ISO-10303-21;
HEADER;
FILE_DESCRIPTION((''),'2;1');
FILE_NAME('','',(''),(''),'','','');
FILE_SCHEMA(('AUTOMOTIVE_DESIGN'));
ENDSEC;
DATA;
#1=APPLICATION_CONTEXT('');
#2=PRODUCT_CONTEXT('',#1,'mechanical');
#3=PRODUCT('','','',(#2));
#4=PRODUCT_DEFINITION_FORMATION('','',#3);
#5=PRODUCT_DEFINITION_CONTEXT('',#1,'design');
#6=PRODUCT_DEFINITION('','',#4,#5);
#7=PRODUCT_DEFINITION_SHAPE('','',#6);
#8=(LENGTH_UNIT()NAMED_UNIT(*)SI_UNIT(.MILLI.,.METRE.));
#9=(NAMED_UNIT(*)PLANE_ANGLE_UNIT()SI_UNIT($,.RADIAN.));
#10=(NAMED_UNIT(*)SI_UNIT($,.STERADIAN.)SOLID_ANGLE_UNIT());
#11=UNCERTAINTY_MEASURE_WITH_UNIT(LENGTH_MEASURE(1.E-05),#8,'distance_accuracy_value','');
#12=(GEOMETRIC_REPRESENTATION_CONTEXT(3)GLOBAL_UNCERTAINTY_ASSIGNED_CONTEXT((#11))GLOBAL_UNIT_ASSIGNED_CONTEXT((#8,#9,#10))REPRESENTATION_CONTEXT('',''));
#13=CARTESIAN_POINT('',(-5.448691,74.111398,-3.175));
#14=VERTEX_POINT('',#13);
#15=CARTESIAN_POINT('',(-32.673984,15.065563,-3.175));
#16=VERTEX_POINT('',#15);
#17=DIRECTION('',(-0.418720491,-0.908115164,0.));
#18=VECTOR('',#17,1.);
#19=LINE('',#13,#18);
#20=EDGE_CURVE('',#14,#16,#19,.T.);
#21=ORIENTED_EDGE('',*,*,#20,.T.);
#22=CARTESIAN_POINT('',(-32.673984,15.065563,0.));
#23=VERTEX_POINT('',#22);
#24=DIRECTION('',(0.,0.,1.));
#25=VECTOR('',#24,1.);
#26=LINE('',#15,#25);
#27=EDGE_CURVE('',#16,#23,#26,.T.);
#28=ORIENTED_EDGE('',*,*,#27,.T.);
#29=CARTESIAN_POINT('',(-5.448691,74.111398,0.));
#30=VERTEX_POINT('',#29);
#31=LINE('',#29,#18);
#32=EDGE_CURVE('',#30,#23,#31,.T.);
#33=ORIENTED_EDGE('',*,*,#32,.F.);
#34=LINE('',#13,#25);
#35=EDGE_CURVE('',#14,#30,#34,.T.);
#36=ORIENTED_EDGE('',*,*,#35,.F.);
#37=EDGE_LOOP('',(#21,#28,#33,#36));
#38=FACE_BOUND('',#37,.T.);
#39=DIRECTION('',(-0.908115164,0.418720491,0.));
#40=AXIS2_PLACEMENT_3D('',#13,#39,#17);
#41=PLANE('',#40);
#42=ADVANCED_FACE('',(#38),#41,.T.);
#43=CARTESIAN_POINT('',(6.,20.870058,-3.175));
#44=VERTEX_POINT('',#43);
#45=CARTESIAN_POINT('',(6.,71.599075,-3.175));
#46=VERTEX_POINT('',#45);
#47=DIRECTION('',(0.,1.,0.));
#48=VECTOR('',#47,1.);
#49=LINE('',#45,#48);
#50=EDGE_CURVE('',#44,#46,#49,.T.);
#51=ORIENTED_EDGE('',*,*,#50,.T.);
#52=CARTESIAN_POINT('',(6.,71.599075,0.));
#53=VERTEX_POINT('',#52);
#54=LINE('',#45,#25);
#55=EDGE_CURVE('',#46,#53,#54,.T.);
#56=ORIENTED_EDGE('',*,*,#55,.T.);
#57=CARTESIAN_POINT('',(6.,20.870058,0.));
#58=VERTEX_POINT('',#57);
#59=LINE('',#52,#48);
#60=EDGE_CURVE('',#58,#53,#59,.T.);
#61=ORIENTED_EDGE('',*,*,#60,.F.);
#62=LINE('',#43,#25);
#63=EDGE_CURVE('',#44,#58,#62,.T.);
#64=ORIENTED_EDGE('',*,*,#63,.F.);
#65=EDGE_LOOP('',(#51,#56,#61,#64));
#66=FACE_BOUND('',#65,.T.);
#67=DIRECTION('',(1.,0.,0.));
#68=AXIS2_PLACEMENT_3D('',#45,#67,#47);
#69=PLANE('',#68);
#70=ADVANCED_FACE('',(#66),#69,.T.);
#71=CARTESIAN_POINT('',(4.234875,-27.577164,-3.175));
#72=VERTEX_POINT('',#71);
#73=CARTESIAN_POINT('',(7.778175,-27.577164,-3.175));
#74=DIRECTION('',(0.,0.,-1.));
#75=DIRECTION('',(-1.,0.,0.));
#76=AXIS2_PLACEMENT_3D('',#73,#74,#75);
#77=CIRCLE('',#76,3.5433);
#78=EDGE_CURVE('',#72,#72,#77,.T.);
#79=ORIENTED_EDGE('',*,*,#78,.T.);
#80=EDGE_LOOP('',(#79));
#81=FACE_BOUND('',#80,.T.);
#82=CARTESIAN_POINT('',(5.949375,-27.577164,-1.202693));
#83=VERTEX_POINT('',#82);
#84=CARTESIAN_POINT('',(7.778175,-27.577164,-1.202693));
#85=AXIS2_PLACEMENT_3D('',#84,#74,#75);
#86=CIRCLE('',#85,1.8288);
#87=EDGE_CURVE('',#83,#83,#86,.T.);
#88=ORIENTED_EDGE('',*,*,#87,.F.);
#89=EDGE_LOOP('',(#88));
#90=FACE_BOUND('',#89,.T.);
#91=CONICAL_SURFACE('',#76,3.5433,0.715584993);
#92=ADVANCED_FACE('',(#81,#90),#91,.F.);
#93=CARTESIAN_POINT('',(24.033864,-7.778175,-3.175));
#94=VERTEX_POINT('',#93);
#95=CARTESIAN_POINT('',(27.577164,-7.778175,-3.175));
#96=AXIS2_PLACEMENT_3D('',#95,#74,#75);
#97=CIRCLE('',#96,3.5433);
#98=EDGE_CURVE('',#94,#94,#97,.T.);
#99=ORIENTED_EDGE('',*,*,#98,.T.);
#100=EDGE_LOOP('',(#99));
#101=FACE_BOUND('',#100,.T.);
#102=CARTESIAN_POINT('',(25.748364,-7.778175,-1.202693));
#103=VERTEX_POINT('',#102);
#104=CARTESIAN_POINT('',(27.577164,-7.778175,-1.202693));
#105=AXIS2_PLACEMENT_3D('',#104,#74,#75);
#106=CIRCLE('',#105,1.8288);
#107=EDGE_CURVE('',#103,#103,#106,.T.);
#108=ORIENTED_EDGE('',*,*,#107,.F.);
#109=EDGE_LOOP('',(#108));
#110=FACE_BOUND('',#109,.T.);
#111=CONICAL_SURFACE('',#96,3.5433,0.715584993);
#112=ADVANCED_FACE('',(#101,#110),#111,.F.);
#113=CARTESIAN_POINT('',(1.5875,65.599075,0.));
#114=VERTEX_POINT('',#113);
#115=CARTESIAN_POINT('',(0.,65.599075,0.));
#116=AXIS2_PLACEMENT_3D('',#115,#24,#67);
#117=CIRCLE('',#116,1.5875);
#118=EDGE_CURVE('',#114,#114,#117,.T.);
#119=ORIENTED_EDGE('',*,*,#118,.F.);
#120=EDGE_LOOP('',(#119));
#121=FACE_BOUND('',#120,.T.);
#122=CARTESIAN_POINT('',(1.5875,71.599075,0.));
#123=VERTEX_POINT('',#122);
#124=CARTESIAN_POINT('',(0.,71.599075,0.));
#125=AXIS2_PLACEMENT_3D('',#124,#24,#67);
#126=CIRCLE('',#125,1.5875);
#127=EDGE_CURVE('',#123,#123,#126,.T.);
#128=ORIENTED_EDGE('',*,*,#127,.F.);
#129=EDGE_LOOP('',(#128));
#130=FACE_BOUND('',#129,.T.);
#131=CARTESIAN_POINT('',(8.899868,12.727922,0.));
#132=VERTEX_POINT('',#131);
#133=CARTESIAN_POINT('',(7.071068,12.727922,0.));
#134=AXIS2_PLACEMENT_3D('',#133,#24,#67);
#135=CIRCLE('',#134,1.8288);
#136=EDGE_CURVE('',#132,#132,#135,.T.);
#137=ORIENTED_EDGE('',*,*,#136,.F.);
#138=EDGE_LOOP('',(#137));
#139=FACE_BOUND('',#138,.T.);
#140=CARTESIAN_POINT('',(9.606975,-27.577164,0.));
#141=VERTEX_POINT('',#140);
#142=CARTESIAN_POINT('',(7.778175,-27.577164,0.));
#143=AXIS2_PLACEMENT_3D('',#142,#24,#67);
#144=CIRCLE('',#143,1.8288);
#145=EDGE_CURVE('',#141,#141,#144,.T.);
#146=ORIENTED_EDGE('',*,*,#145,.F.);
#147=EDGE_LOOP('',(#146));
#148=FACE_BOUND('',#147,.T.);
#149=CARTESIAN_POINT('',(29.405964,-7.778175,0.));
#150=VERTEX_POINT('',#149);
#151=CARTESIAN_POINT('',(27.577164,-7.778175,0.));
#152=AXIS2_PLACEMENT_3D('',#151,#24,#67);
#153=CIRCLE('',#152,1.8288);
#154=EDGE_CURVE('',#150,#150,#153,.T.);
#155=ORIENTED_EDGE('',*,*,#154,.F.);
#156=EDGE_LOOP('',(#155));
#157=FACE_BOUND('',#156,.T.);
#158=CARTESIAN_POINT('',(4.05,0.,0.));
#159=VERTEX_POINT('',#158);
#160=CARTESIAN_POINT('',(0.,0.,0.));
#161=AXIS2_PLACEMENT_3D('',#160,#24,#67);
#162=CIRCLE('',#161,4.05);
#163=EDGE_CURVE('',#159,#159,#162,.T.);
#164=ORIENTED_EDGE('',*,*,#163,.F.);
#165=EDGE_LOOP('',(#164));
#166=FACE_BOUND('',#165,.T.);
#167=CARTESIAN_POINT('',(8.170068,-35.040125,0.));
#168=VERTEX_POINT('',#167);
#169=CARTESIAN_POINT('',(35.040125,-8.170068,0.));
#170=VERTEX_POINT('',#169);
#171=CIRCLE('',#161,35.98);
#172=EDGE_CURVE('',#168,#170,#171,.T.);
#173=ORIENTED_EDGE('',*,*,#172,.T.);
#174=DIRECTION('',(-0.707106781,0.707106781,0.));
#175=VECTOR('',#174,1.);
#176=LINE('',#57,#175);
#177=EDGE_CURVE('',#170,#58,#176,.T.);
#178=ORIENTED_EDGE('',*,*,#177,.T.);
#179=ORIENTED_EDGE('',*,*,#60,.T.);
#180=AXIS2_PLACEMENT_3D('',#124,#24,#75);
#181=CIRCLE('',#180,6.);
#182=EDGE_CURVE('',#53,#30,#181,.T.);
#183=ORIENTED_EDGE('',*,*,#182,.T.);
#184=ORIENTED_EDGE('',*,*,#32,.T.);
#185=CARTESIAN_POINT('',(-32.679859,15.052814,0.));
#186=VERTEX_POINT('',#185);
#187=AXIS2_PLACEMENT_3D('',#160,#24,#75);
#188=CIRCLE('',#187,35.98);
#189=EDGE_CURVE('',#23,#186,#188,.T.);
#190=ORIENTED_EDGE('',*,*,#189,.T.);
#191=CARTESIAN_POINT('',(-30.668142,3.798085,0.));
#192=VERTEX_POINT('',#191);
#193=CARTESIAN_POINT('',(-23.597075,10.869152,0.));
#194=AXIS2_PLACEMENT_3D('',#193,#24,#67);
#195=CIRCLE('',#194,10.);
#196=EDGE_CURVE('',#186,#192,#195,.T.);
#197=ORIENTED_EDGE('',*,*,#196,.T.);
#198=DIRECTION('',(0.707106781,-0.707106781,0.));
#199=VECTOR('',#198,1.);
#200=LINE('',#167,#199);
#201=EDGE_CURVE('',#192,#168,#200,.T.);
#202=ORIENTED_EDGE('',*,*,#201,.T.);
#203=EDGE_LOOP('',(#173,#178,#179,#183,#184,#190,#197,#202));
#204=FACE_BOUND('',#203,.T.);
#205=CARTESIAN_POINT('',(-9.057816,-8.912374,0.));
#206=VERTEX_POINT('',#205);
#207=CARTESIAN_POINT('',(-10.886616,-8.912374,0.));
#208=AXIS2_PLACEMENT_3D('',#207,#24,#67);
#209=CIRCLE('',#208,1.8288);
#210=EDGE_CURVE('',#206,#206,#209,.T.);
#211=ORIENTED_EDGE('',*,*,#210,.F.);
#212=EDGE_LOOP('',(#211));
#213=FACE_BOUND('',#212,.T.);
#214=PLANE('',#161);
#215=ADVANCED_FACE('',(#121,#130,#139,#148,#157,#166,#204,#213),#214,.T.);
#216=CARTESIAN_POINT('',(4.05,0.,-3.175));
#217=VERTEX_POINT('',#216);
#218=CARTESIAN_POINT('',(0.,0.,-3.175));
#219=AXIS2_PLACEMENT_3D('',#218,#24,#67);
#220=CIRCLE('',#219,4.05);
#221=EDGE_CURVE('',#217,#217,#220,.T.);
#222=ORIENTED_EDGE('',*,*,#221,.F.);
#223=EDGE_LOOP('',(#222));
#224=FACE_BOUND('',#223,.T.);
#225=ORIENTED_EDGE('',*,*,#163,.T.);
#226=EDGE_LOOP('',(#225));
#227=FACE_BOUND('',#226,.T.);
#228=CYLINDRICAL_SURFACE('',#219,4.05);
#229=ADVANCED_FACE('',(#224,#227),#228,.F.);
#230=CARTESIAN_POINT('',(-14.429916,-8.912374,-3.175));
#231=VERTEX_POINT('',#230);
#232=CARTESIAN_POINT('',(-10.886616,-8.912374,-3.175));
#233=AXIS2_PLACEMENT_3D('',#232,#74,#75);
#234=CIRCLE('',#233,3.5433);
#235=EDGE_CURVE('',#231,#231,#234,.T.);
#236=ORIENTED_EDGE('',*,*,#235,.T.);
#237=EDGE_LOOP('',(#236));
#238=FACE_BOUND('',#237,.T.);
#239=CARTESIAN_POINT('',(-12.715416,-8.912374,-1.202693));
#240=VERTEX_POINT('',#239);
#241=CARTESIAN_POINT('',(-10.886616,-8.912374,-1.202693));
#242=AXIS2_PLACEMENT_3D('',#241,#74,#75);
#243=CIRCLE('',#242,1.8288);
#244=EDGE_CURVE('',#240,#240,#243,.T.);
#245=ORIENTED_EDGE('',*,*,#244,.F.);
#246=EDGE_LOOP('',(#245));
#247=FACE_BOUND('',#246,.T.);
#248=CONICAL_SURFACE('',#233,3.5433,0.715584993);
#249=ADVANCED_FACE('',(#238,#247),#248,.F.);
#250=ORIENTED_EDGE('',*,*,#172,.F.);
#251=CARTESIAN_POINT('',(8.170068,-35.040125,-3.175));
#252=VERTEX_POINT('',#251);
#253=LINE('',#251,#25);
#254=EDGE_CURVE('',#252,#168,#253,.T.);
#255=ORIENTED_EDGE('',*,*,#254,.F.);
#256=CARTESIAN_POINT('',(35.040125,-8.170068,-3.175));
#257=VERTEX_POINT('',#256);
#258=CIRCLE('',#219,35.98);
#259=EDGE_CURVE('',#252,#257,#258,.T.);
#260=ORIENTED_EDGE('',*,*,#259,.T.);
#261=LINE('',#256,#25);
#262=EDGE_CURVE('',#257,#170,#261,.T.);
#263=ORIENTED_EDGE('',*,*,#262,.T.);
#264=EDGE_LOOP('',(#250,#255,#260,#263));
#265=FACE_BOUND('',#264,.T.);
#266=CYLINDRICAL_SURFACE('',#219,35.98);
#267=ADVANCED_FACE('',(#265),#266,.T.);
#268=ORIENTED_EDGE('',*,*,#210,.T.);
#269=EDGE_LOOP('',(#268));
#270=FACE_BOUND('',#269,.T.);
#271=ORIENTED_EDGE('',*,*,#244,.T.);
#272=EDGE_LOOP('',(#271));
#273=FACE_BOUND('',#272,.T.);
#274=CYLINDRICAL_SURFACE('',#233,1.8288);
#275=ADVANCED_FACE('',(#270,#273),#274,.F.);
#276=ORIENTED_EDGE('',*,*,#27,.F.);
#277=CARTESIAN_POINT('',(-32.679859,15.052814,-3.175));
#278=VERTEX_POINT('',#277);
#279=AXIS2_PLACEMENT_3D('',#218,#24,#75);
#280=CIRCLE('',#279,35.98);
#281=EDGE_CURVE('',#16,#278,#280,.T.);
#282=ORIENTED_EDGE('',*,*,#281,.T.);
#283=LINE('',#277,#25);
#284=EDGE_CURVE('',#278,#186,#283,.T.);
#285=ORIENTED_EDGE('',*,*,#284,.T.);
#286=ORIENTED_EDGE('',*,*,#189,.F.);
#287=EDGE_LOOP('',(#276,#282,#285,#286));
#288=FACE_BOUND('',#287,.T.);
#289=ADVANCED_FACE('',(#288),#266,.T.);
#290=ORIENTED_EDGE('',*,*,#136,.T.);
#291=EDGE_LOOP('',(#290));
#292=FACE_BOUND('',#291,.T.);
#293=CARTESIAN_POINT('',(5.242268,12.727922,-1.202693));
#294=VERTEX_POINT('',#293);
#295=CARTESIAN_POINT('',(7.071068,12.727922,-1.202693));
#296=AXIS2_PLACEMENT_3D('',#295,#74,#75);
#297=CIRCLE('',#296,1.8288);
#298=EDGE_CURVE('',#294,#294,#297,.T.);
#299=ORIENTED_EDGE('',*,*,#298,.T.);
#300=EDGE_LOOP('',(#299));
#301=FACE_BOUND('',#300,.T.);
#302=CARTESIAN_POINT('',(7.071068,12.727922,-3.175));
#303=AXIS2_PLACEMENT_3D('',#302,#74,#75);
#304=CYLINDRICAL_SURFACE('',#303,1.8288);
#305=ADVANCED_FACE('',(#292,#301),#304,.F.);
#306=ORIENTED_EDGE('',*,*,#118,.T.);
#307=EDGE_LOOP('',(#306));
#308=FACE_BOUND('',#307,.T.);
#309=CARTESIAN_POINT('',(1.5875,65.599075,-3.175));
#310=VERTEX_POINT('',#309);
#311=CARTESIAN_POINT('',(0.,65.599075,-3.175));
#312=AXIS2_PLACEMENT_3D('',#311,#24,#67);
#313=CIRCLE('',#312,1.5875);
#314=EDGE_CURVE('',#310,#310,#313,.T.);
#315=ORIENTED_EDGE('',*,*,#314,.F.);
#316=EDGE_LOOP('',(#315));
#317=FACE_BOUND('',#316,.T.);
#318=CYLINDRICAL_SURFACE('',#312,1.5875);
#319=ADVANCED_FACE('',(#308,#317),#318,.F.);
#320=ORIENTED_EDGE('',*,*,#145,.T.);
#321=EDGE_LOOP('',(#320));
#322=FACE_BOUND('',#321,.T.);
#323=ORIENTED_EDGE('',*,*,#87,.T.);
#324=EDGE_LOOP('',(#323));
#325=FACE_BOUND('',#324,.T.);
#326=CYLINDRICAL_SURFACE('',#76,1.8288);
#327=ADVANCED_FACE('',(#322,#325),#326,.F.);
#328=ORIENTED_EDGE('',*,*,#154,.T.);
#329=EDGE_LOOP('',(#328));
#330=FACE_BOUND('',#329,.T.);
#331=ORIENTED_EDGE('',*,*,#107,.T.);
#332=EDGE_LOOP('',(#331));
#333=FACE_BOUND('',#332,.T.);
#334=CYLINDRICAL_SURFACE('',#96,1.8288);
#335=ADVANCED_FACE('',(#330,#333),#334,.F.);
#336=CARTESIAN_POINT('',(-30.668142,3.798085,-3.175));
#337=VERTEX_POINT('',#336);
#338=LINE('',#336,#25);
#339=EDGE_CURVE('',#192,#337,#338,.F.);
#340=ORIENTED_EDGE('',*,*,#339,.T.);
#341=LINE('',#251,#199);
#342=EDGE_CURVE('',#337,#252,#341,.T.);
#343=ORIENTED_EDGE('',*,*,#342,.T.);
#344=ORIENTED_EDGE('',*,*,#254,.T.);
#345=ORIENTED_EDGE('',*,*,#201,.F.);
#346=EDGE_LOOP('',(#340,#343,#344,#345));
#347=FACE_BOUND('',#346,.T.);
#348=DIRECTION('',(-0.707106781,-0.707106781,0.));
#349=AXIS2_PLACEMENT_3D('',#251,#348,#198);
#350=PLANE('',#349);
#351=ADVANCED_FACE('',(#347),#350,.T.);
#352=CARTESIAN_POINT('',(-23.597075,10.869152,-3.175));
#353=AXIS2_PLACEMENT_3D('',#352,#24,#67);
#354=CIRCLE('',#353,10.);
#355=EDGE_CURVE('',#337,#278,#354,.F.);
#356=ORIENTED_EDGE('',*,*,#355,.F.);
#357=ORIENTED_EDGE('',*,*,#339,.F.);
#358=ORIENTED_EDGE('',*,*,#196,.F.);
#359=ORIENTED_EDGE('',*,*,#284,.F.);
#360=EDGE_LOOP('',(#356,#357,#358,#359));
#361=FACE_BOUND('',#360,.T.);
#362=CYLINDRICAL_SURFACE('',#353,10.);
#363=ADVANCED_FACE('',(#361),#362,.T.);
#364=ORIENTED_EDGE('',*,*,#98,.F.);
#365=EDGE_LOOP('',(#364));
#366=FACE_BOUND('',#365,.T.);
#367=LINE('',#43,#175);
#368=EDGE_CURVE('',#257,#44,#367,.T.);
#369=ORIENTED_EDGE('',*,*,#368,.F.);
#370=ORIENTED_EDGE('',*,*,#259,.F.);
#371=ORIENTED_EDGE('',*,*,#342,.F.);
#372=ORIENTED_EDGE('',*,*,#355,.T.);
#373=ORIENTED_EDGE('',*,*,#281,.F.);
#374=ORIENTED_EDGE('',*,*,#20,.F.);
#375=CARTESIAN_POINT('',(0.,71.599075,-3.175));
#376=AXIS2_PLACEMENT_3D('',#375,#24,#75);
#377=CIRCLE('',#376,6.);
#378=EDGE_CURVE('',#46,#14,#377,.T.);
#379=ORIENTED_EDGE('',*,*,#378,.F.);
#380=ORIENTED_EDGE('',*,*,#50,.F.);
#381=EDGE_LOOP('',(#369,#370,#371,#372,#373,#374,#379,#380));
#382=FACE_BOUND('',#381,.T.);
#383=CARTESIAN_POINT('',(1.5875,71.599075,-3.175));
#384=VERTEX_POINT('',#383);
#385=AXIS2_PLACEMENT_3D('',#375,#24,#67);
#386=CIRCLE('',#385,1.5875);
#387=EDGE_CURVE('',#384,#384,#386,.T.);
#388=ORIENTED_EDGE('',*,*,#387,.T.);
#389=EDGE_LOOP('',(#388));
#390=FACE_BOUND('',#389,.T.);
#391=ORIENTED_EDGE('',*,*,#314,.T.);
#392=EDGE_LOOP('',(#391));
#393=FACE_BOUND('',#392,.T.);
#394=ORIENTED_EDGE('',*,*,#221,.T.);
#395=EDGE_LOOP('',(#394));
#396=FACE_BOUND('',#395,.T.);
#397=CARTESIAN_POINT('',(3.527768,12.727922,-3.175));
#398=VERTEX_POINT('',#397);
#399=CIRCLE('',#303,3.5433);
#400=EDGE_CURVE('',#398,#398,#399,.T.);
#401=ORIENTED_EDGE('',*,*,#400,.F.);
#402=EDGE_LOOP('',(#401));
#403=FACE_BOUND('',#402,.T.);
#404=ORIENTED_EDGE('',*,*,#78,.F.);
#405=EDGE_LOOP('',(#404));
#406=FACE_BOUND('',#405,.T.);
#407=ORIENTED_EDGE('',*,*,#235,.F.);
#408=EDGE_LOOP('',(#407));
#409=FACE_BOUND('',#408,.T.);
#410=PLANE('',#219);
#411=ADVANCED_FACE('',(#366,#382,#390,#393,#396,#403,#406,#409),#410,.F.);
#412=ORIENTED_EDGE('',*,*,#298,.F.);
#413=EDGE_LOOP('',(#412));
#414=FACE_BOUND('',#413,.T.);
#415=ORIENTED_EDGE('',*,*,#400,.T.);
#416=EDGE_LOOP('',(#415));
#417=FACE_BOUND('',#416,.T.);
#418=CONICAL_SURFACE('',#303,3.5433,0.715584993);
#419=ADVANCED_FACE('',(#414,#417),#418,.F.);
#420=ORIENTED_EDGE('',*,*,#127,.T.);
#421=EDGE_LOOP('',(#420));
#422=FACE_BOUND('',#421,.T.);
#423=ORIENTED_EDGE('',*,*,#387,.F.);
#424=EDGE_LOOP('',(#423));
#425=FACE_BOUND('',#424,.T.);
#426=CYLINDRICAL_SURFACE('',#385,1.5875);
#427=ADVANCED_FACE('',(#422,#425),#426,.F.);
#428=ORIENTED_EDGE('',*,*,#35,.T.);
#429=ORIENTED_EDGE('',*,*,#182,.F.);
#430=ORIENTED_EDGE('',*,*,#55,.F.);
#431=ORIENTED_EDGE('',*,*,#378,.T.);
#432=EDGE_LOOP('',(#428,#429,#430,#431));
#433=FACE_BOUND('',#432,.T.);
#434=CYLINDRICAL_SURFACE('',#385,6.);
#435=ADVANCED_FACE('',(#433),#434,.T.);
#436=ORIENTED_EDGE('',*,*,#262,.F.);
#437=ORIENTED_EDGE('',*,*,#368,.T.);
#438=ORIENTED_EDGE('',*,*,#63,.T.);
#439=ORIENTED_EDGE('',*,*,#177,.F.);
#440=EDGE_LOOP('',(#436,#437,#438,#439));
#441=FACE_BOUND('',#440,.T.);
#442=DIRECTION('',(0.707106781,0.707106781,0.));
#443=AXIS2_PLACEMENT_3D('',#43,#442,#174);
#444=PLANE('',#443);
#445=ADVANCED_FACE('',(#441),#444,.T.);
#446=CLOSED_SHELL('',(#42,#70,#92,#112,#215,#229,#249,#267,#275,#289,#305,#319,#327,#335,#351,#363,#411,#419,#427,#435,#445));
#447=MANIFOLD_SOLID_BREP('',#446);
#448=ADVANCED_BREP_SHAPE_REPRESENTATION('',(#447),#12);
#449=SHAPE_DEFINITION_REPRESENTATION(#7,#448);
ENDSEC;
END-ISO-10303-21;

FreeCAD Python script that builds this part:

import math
import FreeCAD as App
import Part
import Sketcher
Q = App.Units.Quantity


def edges_at(feature, points):
    """Names of the edges that pass closest to the given points."""
    edges = feature.Shape.Edges
    near = lambda p: min(range(len(edges)), key=lambda i: edges[i].distToShape(Part.Vertex(*p))[0])
    return sorted({f"Edge{near(p) + 1}" for p in points})

doc = App.newDocument("Part")
body = doc.addObject("PartDesign::Body", "Body")

# Sketch on XY plane
sketch1 = body.newObject("Sketcher::SketchObject", "Sketch")
sketch1.AttachmentSupport = (doc.getObject("XY_Plane"), [""])
sketch1.MapMode = "FlatFace"
sketch1.addGeometry([
    Part.LineSegment(App.Vector(-35, 8.2, 0), App.Vector(8.2, -35, 0)),  # 0
    Part.ArcOfCircle(Part.Circle(App.Vector(0, 0, 0), App.Vector(0, 0, 1), 36), math.radians(-77), math.radians(-13)),  # 1
    Part.LineSegment(App.Vector(35, -8.2, 0), App.Vector(6, 20.9, 0)),  # 2
    Part.LineSegment(App.Vector(6, 20.9, 0), App.Vector(6, 71.6, 0)),  # 3
    Part.ArcOfCircle(Part.Circle(App.Vector(0, 71.6, 0), App.Vector(0, 0, 1), 6), math.radians(0), math.radians(155)),  # 4
    Part.LineSegment(App.Vector(-5.4, 74.1, 0), App.Vector(-32.7, 15.1, 0)),  # 5
    Part.ArcOfCircle(Part.Circle(App.Vector(0, 0, 0), App.Vector(0, 0, 1), 36), math.radians(155.25), math.radians(166.88)),  # 6
    Part.Circle(App.Vector(0, 0, 0), App.Vector(0, 0, 1), 4),  # 7
    Part.Circle(App.Vector(0, 65.6, 0), App.Vector(0, 0, 1), 1.6),  # 8
    Part.Circle(App.Vector(0, 71.6, 0), App.Vector(0, 0, 1), 1.6),  # 9
], False)
sketch1.addConstraint([
    Sketcher.Constraint("Coincident", 0, 2, 1, 1),
    Sketcher.Constraint("Coincident", 1, 2, 2, 1),
    Sketcher.Constraint("Coincident", 2, 2, 3, 1),
    Sketcher.Constraint("Tangent", 3, 2, 4, 1),
    Sketcher.Constraint("Tangent", 4, 2, 5, 1),
    Sketcher.Constraint("Tangent", 5, 2, 6, 1),
    Sketcher.Constraint("Coincident", 6, 2, 0, 1),
    Sketcher.Constraint("Vertical", 3),
    Sketcher.Constraint("Coincident", 1, 3, -1, 1),
    Sketcher.Constraint("Coincident", 6, 3, -1, 1),
    Sketcher.Constraint("Coincident", 7, 3, -1, 1),
    Sketcher.Constraint("Coincident", 9, 3, 4, 3),
    Sketcher.Constraint("Equal", 1, 6),
    Sketcher.Constraint("Equal", 8, 9),
    Sketcher.Constraint("PointOnObject", 4, 3, -2),
    Sketcher.Constraint("PointOnObject", 8, 3, -2),
    Sketcher.Constraint("Parallel", 0, 2),
    Sketcher.Constraint("Radius", 4, 6.0),
    Sketcher.Constraint("Diameter", 7, 8.1),
    Sketcher.Constraint("Angle", 0, Q("-45 deg")),
    Sketcher.Constraint("Radius", 1, 35.98),
    Sketcher.Constraint("Diameter", 8, 3.175),
    Sketcher.Constraint("DistanceY", 8, 3, 4, 3, 6.0),
    Sketcher.Constraint("DistanceY", -1, 1, 4, 2, 74.111398),
    Sketcher.Constraint("DistanceY", 0, 2, 8, 3, 100.639201),
    Sketcher.Constraint("Distance", 2, 41.068939),
])
pad1 = body.newObject("PartDesign::Pad", "Pad")
pad1.Profile = sketch1
pad1.Length = 3.175
pad1.Reversed = True

# Sketch on XY plane
sketch2 = body.newObject("Sketcher::SketchObject", "Sketch001")
sketch2.AttachmentSupport = (doc.getObject("XY_Plane"), [""])
sketch2.MapMode = "FlatFace"
sketch2.AttachmentOffset = App.Placement(App.Vector(0, 0, -3.175), App.Rotation())
sketch2.addGeometry([
    Part.Circle(App.Vector(7.1, 12.7, 0), App.Vector(0, 0, 1), 1.8),
    Part.Circle(App.Vector(27.6, -7.8, 0), App.Vector(0, 0, 1), 1.8),
    Part.Circle(App.Vector(-10.9, -8.9, 0), App.Vector(0, 0, 1), 1.8),
    Part.Circle(App.Vector(7.8, -27.6, 0), App.Vector(0, 0, 1), 1.8),
], False)
sketch2.addConstraint([
    Sketcher.Constraint("Equal", 0, 1),
    Sketcher.Constraint("Equal", 1, 2),
    Sketcher.Constraint("Equal", 2, 3),
    Sketcher.Constraint("Diameter", 0, 3.6576),
    Sketcher.Constraint("DistanceY", 2, 3, 1, 3, 1.134199),
    Sketcher.Constraint("DistanceX", 2, 3, 1, 3, 38.46378),
    Sketcher.Constraint("DistanceX", 2, 3, 3, 3, 18.664791),
    Sketcher.Constraint("DistanceY", 3, 3, 2, 3, 18.664791),
    Sketcher.Constraint("DistanceX", -1, 1, 0, 3, 7.071068),
    Sketcher.Constraint("DistanceY", -1, 1, 0, 3, 12.727922),
    Sketcher.Constraint("DistanceX", -1, 1, 1, 3, 27.577164),
    Sketcher.Constraint("DistanceY", 1, 3, -1, 1, 7.778175),
])
doc.recompute()
hole = body.newObject("PartDesign::Hole", "Hole")
hole.Profile = sketch2
hole.ThreadType = "None"
hole.Diameter = 3.6576
hole.DepthType = "Dimension"
hole.Depth = 10.973
hole.DrillPoint = "Angled"
hole.DrillPointAngle = 118
hole.HoleCutType = "Countersink"
hole.HoleCutDiameter = 7.0866
hole.HoleCutCountersinkAngle = 82
hole.Reversed = True
doc.recompute()

fillet = body.newObject("PartDesign::Fillet", "Fillet")
fillet.Base = (hole, edges_at(hole, [(-35.04, 8.17, -1.587)]))
fillet.Radius = 10

doc.recompute()
